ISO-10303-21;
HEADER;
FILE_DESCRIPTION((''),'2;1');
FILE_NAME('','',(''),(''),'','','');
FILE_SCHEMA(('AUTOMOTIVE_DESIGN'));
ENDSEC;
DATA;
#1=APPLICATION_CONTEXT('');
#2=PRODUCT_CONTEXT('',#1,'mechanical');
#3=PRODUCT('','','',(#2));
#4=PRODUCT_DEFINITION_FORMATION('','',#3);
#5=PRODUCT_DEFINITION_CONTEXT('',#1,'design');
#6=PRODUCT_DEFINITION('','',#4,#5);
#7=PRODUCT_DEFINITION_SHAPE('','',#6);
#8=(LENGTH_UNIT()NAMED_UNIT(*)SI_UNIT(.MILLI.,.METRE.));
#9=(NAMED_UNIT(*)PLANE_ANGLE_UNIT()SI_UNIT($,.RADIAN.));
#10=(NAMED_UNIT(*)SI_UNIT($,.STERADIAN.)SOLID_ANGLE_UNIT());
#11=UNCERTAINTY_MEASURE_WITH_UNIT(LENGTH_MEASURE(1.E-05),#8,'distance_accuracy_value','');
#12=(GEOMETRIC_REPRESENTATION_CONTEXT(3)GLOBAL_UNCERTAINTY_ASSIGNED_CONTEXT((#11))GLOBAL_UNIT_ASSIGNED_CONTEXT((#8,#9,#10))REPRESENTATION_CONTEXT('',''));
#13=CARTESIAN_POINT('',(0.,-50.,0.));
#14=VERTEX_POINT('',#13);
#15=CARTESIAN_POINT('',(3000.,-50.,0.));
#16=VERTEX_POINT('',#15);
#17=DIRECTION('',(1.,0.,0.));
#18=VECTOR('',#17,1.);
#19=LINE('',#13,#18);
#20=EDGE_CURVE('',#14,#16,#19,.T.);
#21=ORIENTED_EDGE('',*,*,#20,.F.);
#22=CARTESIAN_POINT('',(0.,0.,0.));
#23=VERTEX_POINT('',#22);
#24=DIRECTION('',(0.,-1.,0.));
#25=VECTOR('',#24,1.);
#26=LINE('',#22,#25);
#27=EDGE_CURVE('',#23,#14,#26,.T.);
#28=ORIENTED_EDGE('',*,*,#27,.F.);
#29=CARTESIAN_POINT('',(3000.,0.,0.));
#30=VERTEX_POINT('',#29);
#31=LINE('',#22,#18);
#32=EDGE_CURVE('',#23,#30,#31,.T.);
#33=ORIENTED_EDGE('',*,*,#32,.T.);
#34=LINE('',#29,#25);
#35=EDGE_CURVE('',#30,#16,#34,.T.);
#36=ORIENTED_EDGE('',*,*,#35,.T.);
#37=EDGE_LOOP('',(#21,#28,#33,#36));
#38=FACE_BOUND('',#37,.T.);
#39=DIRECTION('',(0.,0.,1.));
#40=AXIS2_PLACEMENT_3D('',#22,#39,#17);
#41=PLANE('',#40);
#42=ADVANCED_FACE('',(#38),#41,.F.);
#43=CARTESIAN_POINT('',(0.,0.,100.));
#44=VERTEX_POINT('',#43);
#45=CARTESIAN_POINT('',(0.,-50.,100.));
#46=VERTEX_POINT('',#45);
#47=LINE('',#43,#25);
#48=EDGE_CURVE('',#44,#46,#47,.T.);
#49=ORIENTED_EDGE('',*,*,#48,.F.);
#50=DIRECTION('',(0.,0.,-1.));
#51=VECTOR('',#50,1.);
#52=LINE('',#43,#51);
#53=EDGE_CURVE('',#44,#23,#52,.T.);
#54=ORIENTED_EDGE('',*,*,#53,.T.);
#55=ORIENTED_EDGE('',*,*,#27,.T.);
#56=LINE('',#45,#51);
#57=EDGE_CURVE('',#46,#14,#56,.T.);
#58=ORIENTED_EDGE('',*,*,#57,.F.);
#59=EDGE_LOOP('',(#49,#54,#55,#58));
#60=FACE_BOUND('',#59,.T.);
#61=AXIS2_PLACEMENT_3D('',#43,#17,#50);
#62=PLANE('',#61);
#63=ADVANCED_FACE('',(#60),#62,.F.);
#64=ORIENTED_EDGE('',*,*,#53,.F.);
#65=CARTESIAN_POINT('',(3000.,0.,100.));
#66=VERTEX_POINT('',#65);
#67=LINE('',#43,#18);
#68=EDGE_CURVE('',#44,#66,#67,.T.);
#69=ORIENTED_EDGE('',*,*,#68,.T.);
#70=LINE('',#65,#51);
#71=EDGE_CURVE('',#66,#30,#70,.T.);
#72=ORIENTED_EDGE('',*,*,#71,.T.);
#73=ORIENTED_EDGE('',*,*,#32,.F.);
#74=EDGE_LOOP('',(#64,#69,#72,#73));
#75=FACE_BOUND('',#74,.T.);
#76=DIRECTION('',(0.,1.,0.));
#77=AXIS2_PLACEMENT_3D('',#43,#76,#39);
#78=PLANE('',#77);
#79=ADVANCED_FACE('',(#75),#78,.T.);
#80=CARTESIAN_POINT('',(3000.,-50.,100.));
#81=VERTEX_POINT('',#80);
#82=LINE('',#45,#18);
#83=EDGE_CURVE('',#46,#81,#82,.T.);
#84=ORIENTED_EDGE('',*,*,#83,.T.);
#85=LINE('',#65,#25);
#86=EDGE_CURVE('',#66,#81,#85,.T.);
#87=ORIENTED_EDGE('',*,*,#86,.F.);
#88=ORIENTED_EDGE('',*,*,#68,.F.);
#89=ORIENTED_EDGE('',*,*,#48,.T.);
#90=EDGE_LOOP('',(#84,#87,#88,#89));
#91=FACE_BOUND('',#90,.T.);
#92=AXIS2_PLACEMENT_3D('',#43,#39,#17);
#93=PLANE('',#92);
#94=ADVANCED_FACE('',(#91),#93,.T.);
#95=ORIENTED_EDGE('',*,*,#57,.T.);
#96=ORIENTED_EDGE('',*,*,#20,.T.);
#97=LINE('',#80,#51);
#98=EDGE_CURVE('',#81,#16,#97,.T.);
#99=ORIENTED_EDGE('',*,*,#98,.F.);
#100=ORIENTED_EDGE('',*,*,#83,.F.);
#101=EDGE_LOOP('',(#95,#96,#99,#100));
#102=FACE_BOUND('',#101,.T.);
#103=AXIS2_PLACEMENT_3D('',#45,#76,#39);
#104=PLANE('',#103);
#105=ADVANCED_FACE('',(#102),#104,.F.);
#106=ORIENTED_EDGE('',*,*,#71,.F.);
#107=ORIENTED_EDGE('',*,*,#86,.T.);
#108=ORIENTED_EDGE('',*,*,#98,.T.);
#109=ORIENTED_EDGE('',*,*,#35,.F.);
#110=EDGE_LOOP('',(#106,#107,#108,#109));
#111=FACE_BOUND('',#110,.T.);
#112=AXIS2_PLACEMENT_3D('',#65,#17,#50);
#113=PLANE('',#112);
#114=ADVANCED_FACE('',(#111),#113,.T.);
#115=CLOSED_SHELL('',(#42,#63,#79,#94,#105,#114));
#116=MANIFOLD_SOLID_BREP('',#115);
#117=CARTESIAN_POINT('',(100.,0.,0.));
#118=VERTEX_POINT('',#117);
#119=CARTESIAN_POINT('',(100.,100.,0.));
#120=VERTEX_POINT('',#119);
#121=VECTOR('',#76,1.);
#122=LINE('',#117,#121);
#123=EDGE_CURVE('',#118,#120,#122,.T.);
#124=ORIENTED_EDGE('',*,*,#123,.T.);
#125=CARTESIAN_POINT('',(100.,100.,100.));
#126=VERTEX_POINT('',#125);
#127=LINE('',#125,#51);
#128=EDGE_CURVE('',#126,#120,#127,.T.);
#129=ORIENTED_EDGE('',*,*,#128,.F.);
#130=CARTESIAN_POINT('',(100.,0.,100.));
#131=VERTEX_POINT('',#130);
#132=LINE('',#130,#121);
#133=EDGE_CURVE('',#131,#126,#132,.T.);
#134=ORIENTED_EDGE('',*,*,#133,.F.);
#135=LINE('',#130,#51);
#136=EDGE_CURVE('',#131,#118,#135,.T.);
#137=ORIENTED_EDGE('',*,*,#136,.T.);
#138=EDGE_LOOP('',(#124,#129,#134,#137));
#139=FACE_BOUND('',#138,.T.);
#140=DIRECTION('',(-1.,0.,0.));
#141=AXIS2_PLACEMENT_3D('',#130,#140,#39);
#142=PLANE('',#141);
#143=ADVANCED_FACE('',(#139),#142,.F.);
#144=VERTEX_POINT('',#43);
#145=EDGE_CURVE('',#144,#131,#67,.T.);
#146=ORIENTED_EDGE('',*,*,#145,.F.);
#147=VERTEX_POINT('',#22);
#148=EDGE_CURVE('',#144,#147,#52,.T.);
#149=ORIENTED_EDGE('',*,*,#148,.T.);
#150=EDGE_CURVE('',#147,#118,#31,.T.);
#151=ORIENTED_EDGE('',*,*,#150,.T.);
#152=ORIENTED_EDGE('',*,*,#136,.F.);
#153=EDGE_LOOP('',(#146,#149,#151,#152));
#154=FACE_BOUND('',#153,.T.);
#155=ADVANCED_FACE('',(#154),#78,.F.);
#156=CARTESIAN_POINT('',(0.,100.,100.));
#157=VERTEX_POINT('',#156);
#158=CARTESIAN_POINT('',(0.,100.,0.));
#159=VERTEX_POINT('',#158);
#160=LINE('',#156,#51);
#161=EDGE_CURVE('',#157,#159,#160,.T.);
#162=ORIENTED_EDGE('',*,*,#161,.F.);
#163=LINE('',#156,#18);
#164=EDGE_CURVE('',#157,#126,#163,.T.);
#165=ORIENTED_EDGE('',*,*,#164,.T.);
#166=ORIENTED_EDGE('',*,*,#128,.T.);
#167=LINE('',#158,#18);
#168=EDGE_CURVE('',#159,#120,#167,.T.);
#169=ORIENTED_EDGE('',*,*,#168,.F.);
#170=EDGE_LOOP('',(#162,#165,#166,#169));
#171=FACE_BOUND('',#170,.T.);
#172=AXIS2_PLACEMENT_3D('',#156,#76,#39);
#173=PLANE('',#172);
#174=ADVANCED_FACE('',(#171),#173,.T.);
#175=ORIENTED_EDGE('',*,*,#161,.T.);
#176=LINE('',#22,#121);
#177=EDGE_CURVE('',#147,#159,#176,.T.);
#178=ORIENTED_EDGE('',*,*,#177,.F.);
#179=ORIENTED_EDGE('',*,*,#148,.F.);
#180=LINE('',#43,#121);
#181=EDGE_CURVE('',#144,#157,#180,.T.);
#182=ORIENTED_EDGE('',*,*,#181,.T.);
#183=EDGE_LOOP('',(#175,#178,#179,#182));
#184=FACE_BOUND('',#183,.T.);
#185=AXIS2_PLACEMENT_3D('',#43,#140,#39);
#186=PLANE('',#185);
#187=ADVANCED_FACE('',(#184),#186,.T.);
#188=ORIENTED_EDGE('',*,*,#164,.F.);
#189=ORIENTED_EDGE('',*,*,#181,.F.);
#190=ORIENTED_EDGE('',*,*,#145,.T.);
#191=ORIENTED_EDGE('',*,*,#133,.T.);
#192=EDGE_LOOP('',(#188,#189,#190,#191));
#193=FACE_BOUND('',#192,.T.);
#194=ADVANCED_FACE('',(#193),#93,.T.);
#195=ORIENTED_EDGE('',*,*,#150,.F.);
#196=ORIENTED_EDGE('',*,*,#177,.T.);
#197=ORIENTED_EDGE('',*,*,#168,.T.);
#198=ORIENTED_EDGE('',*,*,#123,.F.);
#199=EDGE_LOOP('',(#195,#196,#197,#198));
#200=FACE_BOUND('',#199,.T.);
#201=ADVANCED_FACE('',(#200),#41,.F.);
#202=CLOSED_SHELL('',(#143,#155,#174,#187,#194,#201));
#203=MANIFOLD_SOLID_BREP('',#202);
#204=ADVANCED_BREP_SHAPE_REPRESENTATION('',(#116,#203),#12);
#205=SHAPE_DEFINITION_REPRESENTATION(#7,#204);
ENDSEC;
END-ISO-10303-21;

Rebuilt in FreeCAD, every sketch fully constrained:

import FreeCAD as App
import Part
import Sketcher


def add_polygon(sketch, points):
    """Adds a closed chain of lines whose ends are joined by coincident constraints."""
    first, n = sketch.GeometryCount, len(points)
    for a, b in zip(points, points[1:] + points[:1]):
        sketch.addGeometry(Part.LineSegment(App.Vector(*a, 0), App.Vector(*b, 0)), False)
    for i in range(n):
        sketch.addConstraint(Sketcher.Constraint("Coincident", first + i, 2, first + (i + 1) % n, 1))

doc = App.newDocument("Part")
body = doc.addObject("PartDesign::Body", "Body")

sketch1 = body.newObject("Sketcher::SketchObject", "Sketch")
sketch1.AttachmentSupport = (doc.getObject("XY_Plane"), [""])
sketch1.MapMode = "FlatFace"
add_polygon(sketch1, [(0, 0), (0, -50), (3000, -50), (3000, 0)])
sketch1.addConstraint([
    Sketcher.Constraint("Vertical", 0),
    Sketcher.Constraint("Horizontal", 1),
    Sketcher.Constraint("Vertical", 2),
    Sketcher.Constraint("Horizontal", 3),
    Sketcher.Constraint("Coincident", 3, 2, -1, 1),
    Sketcher.Constraint("DistanceX", 1, 1, 1, 2, 3000.0),
    Sketcher.Constraint("DistanceY", 0, 2, 0, 1, 50.0),
])
pad1 = body.newObject("PartDesign::Pad", "Pad")
pad1.Profile = sketch1
pad1.Length = 100
body2 = doc.addObject("PartDesign::Body", "Body001")

sketch2 = body2.newObject("Sketcher::SketchObject", "Sketch001")
sketch2.AttachmentSupport = (doc.getObject("XY_Plane001"), [""])
sketch2.MapMode = "FlatFace"
add_polygon(sketch2, [(0, 100), (0, 0), (100, 0), (100, 100)])
sketch2.addConstraint([
    Sketcher.Constraint("Vertical", 0),
    Sketcher.Constraint("Horizontal", 1),
    Sketcher.Constraint("Vertical", 2),
    Sketcher.Constraint("Horizontal", 3),
    Sketcher.Constraint("Coincident", 0, 2, -1, 1),
    Sketcher.Constraint("Equal", 3, 0),
    Sketcher.Constraint("DistanceX", 1, 1, 1, 2, 100.0),
])
pad2 = body2.newObject("PartDesign::Pad", "Pad001")
pad2.Profile = sketch2
pad2.Length = 100

doc.recompute()
